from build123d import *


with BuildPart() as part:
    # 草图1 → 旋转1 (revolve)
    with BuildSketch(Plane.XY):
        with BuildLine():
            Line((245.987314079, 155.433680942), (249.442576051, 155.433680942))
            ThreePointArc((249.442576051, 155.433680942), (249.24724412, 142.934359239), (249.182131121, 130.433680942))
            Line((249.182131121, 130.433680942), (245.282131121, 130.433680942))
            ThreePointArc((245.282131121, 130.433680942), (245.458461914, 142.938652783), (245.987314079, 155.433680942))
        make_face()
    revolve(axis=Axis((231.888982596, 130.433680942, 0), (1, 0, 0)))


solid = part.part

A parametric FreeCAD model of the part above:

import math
import FreeCAD as App
import Part
import Sketcher
from FreeCAD import Vector

doc = App.newDocument("Part")
params = doc.addObject("Spreadsheet::Sheet", "Params")
for row, (alias, value) in enumerate([
    ("sketch1_radius", "1199.999998 mm"),
    ("sketch1_radius2", "443.499999 mm"),
    ("sketch1_width", "3.9 mm"),
    ("revolution_angle", "360 deg"),
], start=1):
    params.set(f"A{row}", alias)
    params.set(f"B{row}", "=" + value)
    params.setAlias(f"B{row}", alias)

body = doc.addObject("PartDesign::Body", "Body")

sketch1 = body.newObject("Sketcher::SketchObject", "Sketch")
sketch1.AttachmentSupport = (doc.getObject("XY_Plane"), [""])
sketch1.MapMode = "FlatFace"
sketch1.addGeometry([
    Part.LineSegment(Vector(249.4, 155.4, 0), Vector(246, 155.4, 0)),
    Part.ArcOfCircle(Part.Circle(Vector(688.8, 130.4, 0), Vector(0, 0, 1), 443.5), math.radians(176.77), math.radians(180)),
    Part.LineSegment(Vector(245.3, 130.4, 0), Vector(249.2, 130.4, 0)),
    Part.ArcOfCircle(Part.Circle(Vector(1449.2, 130.4, 0), Vector(0, 0, 1), 1200), math.radians(178.81), math.radians(180)),
], False)
sketch1.addGeometry(Part.LineSegment(Vector(245.3, 130.4, 0), Vector(1449.2, 130.4, 0)), True)
sketch1.addConstraint([
    Sketcher.Constraint("Coincident", 0, 2, 1, 1),
    Sketcher.Constraint("Coincident", 1, 2, 2, 1),
    Sketcher.Constraint("Coincident", 2, 2, 3, 2),
    Sketcher.Constraint("Coincident", 3, 1, 0, 1),
    Sketcher.Constraint("Horizontal", 0),
    Sketcher.Constraint("Horizontal", 2),
    Sketcher.Constraint("Horizontal", 4),
    Sketcher.Constraint("Coincident", 4, 1, 1, 2),
    Sketcher.Constraint("Coincident", 4, 2, 3, 3),
    Sketcher.Constraint("Horizontal", 1, 3, 3, 3),
    Sketcher.Constraint("Radius", 3, 1199.999998),
    Sketcher.Constraint("Radius", 1, 443.499999),
    Sketcher.Constraint("DistanceX", 2, 1, 2, 2, 3.9),
    Sketcher.Constraint("DistanceY", 1, 3, 0, 2, 25.0),
    Sketcher.Constraint("DistanceX", -1, 1, 1, 3, 688.78213),
    Sketcher.Constraint("DistanceY", -1, 1, 1, 3, 130.433681),
])
sketch1.setExpression("Constraints[10]", "Params.sketch1_radius")
sketch1.setExpression("Constraints[11]", "Params.sketch1_radius2")
sketch1.setExpression("Constraints[12]", "Params.sketch1_width")
revolution = body.newObject("PartDesign::Revolution", "Revolution")
revolution.Profile = sketch1
revolution.ReferenceAxis = (sketch1, ["Axis0"])
revolution.setExpression("Angle", "Params.revolution_angle")

doc.recompute()
